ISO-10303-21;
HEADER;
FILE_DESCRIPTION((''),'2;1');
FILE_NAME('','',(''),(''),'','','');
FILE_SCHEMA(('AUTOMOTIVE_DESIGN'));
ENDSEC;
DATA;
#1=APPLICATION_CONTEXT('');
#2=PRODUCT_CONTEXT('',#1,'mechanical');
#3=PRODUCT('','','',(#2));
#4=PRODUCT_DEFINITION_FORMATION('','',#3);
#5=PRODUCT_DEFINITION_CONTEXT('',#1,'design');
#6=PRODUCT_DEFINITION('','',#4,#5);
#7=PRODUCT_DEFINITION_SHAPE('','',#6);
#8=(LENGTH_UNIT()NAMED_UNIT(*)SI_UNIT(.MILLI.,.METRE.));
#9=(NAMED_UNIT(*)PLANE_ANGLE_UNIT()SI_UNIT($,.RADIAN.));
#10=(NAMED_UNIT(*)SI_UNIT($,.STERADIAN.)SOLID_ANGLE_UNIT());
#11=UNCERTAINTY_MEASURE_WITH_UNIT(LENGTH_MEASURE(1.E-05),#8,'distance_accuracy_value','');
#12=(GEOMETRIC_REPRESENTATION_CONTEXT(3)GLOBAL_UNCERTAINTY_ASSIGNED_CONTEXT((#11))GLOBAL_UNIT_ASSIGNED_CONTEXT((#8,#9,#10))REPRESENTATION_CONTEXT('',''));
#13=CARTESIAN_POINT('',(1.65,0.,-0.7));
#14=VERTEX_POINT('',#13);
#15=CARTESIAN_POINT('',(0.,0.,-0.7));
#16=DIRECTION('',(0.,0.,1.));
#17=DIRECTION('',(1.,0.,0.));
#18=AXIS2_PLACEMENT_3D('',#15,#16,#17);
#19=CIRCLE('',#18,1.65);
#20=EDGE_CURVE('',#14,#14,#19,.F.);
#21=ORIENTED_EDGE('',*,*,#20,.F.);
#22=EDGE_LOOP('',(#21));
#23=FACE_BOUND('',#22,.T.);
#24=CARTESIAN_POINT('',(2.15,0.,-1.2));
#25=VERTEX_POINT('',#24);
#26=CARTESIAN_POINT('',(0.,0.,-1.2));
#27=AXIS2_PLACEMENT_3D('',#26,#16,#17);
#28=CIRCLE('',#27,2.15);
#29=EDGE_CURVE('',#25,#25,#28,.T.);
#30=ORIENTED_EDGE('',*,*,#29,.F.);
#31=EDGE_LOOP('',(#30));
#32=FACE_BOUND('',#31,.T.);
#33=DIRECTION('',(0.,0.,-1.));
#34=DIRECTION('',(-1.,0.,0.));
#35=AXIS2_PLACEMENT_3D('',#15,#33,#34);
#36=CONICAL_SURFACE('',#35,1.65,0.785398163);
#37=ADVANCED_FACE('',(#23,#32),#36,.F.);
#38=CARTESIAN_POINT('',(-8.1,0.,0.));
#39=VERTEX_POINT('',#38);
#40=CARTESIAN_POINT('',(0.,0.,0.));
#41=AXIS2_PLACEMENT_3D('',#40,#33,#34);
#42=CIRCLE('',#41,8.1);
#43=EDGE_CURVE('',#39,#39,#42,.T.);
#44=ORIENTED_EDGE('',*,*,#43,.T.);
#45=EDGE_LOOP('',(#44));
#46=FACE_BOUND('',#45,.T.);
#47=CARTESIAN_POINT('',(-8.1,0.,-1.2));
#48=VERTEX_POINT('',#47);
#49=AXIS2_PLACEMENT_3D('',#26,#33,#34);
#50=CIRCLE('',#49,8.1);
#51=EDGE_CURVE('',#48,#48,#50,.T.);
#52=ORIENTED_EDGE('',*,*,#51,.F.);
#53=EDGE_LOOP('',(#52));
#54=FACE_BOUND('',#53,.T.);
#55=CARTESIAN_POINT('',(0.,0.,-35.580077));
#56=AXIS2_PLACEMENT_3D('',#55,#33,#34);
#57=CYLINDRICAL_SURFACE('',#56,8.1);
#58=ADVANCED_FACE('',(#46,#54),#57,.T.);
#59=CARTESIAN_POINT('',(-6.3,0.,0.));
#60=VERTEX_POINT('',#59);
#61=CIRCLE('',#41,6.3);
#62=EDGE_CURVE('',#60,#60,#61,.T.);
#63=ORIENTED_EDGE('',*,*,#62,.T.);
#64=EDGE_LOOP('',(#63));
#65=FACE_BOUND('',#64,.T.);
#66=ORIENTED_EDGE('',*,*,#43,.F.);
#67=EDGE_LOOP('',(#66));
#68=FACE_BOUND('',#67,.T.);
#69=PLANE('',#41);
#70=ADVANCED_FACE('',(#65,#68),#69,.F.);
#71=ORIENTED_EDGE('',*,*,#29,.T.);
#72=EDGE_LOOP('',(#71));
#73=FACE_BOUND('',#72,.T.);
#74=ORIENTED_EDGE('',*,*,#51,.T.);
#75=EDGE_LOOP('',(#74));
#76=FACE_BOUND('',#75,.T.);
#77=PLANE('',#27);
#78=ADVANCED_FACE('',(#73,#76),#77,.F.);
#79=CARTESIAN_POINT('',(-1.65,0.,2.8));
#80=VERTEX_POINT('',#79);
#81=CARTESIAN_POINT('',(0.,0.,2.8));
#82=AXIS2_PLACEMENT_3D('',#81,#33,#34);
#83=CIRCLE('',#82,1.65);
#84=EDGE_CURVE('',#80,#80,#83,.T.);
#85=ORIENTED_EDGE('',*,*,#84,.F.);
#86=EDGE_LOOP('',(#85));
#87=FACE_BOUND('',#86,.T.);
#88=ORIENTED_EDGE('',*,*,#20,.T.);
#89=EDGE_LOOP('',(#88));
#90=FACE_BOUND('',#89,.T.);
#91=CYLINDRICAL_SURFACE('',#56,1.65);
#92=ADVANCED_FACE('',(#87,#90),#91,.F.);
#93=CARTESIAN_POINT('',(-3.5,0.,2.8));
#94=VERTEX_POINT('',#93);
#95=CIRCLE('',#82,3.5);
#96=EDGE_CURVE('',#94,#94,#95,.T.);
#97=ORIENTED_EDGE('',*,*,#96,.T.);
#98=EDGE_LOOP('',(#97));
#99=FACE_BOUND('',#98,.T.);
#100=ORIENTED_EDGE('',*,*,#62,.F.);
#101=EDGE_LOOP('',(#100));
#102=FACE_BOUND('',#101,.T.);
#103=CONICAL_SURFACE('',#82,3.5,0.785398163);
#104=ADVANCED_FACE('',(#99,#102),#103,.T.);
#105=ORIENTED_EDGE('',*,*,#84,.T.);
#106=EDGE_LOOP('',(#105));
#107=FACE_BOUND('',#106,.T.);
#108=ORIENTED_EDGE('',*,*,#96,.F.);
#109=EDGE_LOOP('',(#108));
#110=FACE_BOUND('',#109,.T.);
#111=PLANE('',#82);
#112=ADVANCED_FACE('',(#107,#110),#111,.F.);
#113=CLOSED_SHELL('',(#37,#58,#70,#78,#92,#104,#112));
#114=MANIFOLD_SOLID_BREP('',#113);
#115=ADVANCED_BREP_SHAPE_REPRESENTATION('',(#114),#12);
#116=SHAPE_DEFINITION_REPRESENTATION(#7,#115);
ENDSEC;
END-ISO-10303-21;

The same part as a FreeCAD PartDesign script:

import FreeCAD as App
import Part
import Sketcher

V = App.Vector
Q = App.Units.Quantity


def edges_at(feature, points):
    """Names of the edges that pass closest to the given points."""
    edges = feature.Shape.Edges
    near = lambda p: min(range(len(edges)), key=lambda i: edges[i].distToShape(Part.Vertex(*p))[0])
    return sorted({f"Edge{near(p) + 1}" for p in points})


def add_polygon(sketch, points):
    """Adds a closed chain of lines whose ends are joined by coincident constraints."""
    first, n = sketch.GeometryCount, len(points)
    for a, b in zip(points, points[1:] + points[:1]):
        sketch.addGeometry(Part.LineSegment(App.Vector(*a, 0), App.Vector(*b, 0)), False)
    for i in range(n):
        sketch.addConstraint(Sketcher.Constraint("Coincident", first + i, 2, first + (i + 1) % n, 1))

doc = App.newDocument("Part")
body = doc.addObject("PartDesign::Body", "Body")

# Sketch on XZ plane
sketch1 = body.newObject("Sketcher::SketchObject", "Sketch")
sketch1.AttachmentSupport = (doc.getObject("XZ_Plane"), [""])
sketch1.MapMode = "FlatFace"
add_polygon(sketch1, [(6.3, 0), (8.1, 0), (8.1, -1.2), (1.65, -1.2), (1.65, 2.8), (3.5, 2.8)])  # lines 0-5
sketch1.addConstraint(Sketcher.Constraint("Horizontal", 0))
sketch1.addConstraint(Sketcher.Constraint("Vertical", 1))
sketch1.addConstraint(Sketcher.Constraint("Horizontal", 2))
sketch1.addConstraint(Sketcher.Constraint("Vertical", 3))
sketch1.addConstraint(Sketcher.Constraint("Horizontal", 4))
sketch1.addConstraint(Sketcher.Constraint("PointOnObject", 0, 2, -1))
sketch1.addConstraint(Sketcher.Constraint("DistanceY", 3, 1, 3, 2, Q("4 mm")))
sketch1.addConstraint(Sketcher.Constraint("Angle", 5, Q("-45 deg")))
sketch1.addConstraint(Sketcher.Constraint("DistanceX", 0, 1, 0, 2, Q("1.8 mm")))
sketch1.addConstraint(Sketcher.Constraint("DistanceY", 1, 2, 1, 1, Q("1.2 mm")))
sketch1.addConstraint(Sketcher.Constraint("DistanceX", 2, 2, 2, 1, Q("6.45 mm")))
sketch1.addConstraint(Sketcher.Constraint("DistanceX", -1, 1, 0, 2, Q("8.1 mm")))
revolution = body.newObject("PartDesign::Revolution", "Revolution")
revolution.Profile = sketch1
revolution.ReferenceAxis = (sketch1, ["V_Axis"])
revolution.Angle = 360
doc.recompute()

chamfer = body.newObject("PartDesign::Chamfer", "Chamfer")
chamfer.Base = (revolution, edges_at(revolution, [(-1.65, 0, -1.2)]))
chamfer.Size = 0.5

doc.recompute()
